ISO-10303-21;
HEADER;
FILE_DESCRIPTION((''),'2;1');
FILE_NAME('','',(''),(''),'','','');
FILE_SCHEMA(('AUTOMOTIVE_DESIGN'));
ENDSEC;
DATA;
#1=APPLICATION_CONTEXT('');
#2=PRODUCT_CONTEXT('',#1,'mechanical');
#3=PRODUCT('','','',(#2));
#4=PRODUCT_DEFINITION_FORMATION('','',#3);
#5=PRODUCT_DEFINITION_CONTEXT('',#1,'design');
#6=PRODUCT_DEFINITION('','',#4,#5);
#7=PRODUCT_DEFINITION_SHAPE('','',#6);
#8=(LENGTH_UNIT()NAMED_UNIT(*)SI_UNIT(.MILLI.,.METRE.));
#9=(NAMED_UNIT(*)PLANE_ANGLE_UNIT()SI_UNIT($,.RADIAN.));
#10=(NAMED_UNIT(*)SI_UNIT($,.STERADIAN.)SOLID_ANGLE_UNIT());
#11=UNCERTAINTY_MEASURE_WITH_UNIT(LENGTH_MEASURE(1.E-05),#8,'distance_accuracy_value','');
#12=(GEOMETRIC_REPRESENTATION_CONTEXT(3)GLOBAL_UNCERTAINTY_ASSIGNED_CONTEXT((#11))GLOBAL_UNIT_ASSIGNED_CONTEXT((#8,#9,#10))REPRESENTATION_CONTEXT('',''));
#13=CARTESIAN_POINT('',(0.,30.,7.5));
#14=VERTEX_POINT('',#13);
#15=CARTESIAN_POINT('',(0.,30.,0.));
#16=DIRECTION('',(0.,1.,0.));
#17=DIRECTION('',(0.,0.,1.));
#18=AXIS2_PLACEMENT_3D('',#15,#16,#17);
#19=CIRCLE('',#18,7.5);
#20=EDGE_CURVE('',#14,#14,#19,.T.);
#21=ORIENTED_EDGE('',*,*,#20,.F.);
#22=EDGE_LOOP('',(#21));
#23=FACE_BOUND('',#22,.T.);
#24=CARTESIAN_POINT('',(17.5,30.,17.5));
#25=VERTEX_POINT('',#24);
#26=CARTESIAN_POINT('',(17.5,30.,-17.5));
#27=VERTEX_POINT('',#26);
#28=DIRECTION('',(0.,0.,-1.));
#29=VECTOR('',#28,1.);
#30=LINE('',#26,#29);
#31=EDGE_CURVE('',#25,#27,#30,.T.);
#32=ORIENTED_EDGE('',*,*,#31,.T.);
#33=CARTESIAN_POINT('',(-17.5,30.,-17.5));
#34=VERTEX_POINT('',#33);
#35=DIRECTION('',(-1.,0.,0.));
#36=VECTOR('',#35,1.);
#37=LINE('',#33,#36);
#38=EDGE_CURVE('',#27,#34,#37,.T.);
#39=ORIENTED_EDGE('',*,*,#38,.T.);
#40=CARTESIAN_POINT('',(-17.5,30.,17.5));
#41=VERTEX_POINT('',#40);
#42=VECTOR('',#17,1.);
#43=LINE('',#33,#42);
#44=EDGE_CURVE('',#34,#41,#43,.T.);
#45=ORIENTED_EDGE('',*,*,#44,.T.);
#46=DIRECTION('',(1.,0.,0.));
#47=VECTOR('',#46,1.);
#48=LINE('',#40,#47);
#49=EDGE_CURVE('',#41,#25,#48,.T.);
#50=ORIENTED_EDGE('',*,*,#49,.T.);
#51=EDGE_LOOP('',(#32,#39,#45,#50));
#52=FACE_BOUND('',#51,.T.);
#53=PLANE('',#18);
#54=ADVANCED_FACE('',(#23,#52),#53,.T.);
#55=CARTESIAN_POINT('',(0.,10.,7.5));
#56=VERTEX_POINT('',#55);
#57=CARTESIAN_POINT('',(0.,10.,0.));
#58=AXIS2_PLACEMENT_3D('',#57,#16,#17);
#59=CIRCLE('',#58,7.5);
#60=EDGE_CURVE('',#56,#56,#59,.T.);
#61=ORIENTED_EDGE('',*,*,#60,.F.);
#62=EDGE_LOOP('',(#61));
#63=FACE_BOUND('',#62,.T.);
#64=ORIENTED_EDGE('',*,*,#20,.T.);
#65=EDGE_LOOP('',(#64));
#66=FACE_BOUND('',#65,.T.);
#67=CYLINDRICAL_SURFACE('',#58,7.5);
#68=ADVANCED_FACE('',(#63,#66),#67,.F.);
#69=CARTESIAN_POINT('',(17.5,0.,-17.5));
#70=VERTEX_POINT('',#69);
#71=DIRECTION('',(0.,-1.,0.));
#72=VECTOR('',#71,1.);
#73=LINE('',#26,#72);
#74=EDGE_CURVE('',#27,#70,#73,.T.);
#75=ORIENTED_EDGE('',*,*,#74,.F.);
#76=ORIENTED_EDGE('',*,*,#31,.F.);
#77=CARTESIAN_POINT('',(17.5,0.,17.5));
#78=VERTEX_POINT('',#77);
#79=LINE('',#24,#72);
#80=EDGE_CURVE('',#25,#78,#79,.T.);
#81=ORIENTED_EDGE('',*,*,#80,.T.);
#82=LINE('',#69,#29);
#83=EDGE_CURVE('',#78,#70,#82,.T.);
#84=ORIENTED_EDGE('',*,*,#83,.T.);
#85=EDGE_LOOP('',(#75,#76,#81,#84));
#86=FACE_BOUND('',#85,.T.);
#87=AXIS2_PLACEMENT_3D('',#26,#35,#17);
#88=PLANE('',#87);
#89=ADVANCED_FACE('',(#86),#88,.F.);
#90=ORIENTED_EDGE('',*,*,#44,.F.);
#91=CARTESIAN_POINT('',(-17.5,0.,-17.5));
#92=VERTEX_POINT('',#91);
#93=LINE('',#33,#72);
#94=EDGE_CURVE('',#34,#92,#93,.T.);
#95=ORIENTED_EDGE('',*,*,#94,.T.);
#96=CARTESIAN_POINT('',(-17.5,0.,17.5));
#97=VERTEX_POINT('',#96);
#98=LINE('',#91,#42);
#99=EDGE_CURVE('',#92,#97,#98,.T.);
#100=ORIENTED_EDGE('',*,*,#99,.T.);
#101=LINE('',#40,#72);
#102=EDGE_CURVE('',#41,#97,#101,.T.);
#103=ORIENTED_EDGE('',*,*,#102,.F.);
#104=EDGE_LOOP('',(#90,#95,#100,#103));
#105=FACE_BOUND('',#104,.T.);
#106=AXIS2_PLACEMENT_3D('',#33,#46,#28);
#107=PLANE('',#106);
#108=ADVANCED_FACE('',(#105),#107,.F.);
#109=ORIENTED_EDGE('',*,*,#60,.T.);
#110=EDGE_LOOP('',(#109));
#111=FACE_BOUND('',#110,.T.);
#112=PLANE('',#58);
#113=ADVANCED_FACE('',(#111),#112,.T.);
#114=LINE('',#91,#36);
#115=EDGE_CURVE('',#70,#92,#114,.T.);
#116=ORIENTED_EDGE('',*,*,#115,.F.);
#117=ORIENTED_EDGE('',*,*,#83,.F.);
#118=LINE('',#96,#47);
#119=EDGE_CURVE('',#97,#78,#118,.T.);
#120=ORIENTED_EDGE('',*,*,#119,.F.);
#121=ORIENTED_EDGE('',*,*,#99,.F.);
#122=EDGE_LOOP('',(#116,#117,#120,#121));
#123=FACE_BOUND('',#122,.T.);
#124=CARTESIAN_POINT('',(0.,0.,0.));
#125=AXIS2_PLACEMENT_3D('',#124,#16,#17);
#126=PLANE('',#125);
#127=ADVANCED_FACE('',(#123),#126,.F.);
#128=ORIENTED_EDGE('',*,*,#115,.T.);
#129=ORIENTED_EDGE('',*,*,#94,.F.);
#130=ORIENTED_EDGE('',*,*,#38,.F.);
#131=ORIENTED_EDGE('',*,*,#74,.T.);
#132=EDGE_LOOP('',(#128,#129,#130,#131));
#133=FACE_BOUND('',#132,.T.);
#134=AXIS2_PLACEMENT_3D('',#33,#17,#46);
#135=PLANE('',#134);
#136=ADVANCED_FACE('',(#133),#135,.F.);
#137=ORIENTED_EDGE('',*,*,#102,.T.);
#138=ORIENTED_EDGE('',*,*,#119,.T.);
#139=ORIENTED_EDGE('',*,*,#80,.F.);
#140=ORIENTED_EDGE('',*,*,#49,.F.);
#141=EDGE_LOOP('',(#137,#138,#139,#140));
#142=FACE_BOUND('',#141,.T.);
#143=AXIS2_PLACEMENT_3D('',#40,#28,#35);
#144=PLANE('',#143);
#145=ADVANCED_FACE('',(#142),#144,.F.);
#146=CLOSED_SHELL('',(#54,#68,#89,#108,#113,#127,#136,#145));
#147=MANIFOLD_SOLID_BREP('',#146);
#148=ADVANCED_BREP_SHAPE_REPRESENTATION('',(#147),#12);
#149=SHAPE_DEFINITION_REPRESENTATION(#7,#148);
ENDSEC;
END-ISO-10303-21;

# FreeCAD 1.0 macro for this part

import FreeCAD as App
import Part
import Sketcher

V = App.Vector

doc = App.newDocument("Part")
body = doc.addObject("PartDesign::Body", "Body")

sketch1 = doc.addObject("Sketcher::SketchObject", "Sketch")
body.addObject(sketch1)
sketch1.AttachmentSupport = (doc.XZ_Plane, [""])
sketch1.MapMode = "FlatFace"
sketch1.addGeometry([
    Part.LineSegment(V(-18, -18, 0), V(-18, 18, 0)),
    Part.LineSegment(V(-18, 18, 0), V(18, 18, 0)),
    Part.LineSegment(V(18, 18, 0), V(18, -18, 0)),
    Part.LineSegment(V(18, -18, 0), V(-18, -18, 0)),
], False)
sketch1.addConstraint([
    Sketcher.Constraint("Coincident", 0, 2, 1, 1),
    Sketcher.Constraint("Coincident", 1, 2, 2, 1),
    Sketcher.Constraint("Coincident", 2, 2, 3, 1),
    Sketcher.Constraint("Coincident", 3, 2, 0, 1),
    Sketcher.Constraint("Vertical", 0),
    Sketcher.Constraint("Horizontal", 1),
    Sketcher.Constraint("Vertical", 2),
    Sketcher.Constraint("Horizontal", 3),
    Sketcher.Constraint("Symmetric", 0, 2, 2, 2, -1, 1),
    Sketcher.Constraint("Equal", 3, 0),
    Sketcher.Constraint("DistanceX", 1, 1, 1, 2, 35.0),
])
pad1 = doc.addObject("PartDesign::Pad", "Pad")
body.addObject(pad1)
pad1.Profile = sketch1
pad1.Length = 30
pad1.Reversed = True

sketch2 = doc.addObject("Sketcher::SketchObject", "Sketch001")
body.addObject(sketch2)
sketch2.AttachmentSupport = (doc.XZ_Plane, [""])
sketch2.MapMode = "FlatFace"
sketch2.AttachmentOffset = App.Placement(V(0, 0, -30), App.Rotation())
sketch2.addGeometry(Part.Circle(V(0, 0, 0), V(0, 0, 1), 8), False)
sketch2.addConstraint([
    Sketcher.Constraint("Coincident", 0, 3, -1, 1),
    Sketcher.Constraint("Diameter", 0, 15.0),
])
pocket1 = doc.addObject("PartDesign::Pocket", "Pocket")
body.addObject(pocket1)
pocket1.Profile = sketch2
pocket1.Length = 20
pocket1.Reversed = True

doc.recompute()
